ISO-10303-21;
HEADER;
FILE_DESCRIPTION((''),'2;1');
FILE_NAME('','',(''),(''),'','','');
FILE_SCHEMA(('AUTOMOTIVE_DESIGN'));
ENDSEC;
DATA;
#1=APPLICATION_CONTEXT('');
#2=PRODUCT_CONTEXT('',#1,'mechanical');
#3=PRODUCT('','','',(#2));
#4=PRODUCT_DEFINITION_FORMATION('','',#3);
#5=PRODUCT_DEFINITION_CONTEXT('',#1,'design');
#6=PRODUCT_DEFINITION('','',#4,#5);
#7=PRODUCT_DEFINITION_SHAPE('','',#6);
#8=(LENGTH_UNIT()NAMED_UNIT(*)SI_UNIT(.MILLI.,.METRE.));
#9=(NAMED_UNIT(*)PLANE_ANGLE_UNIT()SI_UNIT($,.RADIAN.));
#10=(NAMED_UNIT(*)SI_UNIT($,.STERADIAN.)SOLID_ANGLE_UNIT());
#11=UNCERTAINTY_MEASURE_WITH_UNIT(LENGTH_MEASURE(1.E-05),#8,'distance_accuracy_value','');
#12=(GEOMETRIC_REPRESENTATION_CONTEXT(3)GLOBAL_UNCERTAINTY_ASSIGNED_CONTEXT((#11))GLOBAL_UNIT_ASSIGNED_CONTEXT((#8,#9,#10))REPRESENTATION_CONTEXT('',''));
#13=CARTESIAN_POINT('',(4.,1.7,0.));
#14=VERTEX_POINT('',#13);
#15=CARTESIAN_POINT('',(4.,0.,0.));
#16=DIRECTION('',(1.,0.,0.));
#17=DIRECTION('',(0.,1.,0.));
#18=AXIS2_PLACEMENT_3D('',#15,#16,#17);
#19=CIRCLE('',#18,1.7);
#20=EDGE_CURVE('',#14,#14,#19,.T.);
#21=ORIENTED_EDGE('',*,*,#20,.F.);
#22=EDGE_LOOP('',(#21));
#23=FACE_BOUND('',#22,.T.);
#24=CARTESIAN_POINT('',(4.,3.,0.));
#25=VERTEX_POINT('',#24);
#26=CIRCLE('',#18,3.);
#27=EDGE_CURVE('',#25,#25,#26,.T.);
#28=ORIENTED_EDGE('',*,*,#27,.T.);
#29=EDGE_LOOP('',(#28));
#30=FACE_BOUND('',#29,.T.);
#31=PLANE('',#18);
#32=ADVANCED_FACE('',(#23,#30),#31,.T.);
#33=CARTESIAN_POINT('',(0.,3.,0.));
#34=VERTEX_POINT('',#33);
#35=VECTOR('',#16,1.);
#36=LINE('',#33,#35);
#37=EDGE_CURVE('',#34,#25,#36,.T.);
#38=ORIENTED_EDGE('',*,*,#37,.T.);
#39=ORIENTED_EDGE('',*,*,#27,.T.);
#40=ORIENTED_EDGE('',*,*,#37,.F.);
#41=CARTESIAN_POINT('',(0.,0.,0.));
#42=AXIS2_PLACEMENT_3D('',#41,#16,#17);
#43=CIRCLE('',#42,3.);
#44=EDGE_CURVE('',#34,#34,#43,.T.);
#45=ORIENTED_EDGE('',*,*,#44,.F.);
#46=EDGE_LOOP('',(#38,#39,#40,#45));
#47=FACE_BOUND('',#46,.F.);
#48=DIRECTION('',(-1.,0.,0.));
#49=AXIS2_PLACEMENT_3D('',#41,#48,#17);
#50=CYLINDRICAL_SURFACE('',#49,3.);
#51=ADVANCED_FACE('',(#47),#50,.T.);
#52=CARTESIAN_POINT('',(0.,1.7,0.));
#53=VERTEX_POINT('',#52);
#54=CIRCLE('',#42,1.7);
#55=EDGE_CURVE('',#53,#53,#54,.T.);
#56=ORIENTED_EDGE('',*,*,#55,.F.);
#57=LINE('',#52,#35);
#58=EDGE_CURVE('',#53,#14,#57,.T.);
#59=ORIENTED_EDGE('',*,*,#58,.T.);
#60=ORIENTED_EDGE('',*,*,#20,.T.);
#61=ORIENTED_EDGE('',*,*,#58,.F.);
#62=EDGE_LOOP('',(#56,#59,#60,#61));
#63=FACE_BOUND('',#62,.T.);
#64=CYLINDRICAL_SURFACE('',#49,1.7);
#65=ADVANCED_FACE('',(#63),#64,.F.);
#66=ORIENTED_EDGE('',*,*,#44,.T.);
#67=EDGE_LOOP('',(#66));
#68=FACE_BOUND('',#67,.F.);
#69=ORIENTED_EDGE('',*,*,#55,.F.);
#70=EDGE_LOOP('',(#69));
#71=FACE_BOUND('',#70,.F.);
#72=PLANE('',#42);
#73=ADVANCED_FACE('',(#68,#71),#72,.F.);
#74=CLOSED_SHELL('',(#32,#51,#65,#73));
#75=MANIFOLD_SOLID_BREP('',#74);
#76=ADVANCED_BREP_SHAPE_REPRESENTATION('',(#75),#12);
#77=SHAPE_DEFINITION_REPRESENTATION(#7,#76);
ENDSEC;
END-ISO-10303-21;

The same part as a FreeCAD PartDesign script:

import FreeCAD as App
import Part
import Sketcher
Q = App.Units.Quantity

doc = App.newDocument("Part")
body = doc.addObject("PartDesign::Body", "Body")

sketch1 = doc.addObject("Sketcher::SketchObject", "Sketch")
body.addObject(sketch1)
sketch1.AttachmentSupport = (doc.YZ_Plane, [""])
sketch1.MapMode = "FlatFace"
sketch1.addGeometry(Part.Circle(App.Vector(0, 0, 0), App.Vector(0, 0, 1), 3), False)
sketch1.addGeometry(Part.Circle(App.Vector(0, 0, 0), App.Vector(0, 0, 1), 1.7), False)
sketch1.addConstraint(Sketcher.Constraint("Coincident", 0, 3, -1, 1))
sketch1.addConstraint(Sketcher.Constraint("Coincident", 1, 3, -1, 1))
sketch1.addConstraint(Sketcher.Constraint("Diameter", 0, Q("6 mm")))
sketch1.addConstraint(Sketcher.Constraint("Diameter", 1, Q("3.4 mm")))
pad1 = doc.addObject("PartDesign::Pad", "Pad")
body.addObject(pad1)
pad1.Profile = sketch1
pad1.Length = 4

doc.recompute()
